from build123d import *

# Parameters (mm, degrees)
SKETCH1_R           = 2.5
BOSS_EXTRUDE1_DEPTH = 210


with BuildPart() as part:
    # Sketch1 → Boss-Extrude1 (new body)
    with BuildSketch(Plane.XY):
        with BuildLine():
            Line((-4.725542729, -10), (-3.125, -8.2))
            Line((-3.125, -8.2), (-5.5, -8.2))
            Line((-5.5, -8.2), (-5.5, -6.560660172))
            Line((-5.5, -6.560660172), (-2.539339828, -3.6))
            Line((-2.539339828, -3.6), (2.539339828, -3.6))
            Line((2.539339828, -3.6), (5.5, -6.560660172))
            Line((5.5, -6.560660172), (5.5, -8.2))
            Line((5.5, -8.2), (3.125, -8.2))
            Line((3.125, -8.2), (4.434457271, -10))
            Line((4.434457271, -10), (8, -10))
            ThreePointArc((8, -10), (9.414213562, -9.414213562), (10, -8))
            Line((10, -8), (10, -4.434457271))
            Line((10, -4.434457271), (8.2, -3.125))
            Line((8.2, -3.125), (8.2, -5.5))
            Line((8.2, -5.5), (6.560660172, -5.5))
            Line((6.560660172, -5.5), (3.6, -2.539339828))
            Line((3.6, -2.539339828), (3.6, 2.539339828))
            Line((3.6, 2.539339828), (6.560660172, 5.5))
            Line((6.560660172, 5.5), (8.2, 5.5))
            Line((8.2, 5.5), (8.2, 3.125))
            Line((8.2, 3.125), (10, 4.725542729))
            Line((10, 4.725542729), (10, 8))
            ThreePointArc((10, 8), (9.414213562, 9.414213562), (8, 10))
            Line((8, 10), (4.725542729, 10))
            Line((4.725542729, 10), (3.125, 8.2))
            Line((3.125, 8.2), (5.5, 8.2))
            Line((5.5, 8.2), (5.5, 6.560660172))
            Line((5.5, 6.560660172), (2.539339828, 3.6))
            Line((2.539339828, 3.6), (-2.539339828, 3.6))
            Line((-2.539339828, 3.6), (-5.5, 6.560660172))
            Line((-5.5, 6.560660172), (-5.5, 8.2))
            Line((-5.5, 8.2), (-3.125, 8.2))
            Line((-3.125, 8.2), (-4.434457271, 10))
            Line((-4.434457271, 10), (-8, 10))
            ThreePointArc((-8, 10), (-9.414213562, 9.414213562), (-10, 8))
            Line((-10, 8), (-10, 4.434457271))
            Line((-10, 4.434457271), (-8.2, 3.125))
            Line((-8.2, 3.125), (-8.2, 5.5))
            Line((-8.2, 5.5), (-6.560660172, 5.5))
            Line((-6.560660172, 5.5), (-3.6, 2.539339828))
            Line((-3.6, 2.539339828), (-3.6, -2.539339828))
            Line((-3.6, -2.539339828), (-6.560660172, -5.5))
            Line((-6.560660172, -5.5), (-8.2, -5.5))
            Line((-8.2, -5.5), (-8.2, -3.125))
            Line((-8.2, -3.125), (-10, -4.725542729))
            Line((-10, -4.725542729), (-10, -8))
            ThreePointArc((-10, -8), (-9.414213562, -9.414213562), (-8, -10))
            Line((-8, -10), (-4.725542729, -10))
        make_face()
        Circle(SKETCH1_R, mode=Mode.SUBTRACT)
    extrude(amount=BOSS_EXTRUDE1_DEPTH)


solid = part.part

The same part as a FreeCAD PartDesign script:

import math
import FreeCAD as App
import Part
import Sketcher

V = App.Vector
Q = App.Units.Quantity

doc = App.newDocument("Part")
body = doc.addObject("PartDesign::Body", "Body")

# Sketch on XY plane
sketch1 = doc.addObject("Sketcher::SketchObject", "Sketch")
body.addObject(sketch1)
sketch1.AttachmentSupport = (doc.XY_Plane, [""])
sketch1.MapMode = "FlatFace"
sketch1.addGeometry([
    Part.LineSegment(V(-4.725543, -10, 0), V(-3.125, -8.2, 0)),  # 0
    Part.LineSegment(V(-3.125, -8.2, 0), V(-5.5, -8.2, 0)),  # 1
    Part.LineSegment(V(-5.5, -8.2, 0), V(-5.5, -6.56066, 0)),  # 2
    Part.LineSegment(V(-5.5, -6.56066, 0), V(-2.53934, -3.6, 0)),  # 3
    Part.LineSegment(V(-2.53934, -3.6, 0), V(2.53934, -3.6, 0)),  # 4
    Part.LineSegment(V(2.53934, -3.6, 0), V(5.5, -6.56066, 0)),  # 5
    Part.LineSegment(V(5.5, -6.56066, 0), V(5.5, -8.2, 0)),  # 6
    Part.LineSegment(V(5.5, -8.2, 0), V(3.125, -8.2, 0)),  # 7
    Part.LineSegment(V(3.125, -8.2, 0), V(4.434457, -10, 0)),  # 8
    Part.LineSegment(V(4.434457, -10, 0), V(8, -10, 0)),  # 9
    Part.ArcOfCircle(Part.Circle(V(8, -8, 0), V(0, 0, 1), 2), math.radians(-90), math.radians(0)),  # 10
    Part.LineSegment(V(10, -8, 0), V(10, -4.434457, 0)),  # 11
    Part.LineSegment(V(10, -4.434457, 0), V(8.2, -3.125, 0)),  # 12
    Part.LineSegment(V(8.2, -3.125, 0), V(8.2, -5.5, 0)),  # 13
    Part.LineSegment(V(8.2, -5.5, 0), V(6.56066, -5.5, 0)),  # 14
    Part.LineSegment(V(6.56066, -5.5, 0), V(3.6, -2.53934, 0)),  # 15
    Part.LineSegment(V(3.6, -2.53934, 0), V(3.6, 2.53934, 0)),  # 16
    Part.LineSegment(V(3.6, 2.53934, 0), V(6.56066, 5.5, 0)),  # 17
    Part.LineSegment(V(6.56066, 5.5, 0), V(8.2, 5.5, 0)),  # 18
    Part.LineSegment(V(8.2, 5.5, 0), V(8.2, 3.125, 0)),  # 19
    Part.LineSegment(V(8.2, 3.125, 0), V(10, 4.725543, 0)),  # 20
    Part.LineSegment(V(10, 4.725543, 0), V(10, 8, 0)),  # 21
    Part.ArcOfCircle(Part.Circle(V(8, 8, 0), V(0, 0, 1), 2), math.radians(0), math.radians(90)),  # 22
    Part.LineSegment(V(8, 10, 0), V(4.725543, 10, 0)),  # 23
    Part.LineSegment(V(4.725543, 10, 0), V(3.125, 8.2, 0)),  # 24
    Part.LineSegment(V(3.125, 8.2, 0), V(5.5, 8.2, 0)),  # 25
    Part.LineSegment(V(5.5, 8.2, 0), V(5.5, 6.56066, 0)),  # 26
    Part.LineSegment(V(5.5, 6.56066, 0), V(2.53934, 3.6, 0)),  # 27
    Part.LineSegment(V(2.53934, 3.6, 0), V(-2.53934, 3.6, 0)),  # 28
    Part.LineSegment(V(-2.53934, 3.6, 0), V(-5.5, 6.56066, 0)),  # 29
    Part.LineSegment(V(-5.5, 6.56066, 0), V(-5.5, 8.2, 0)),  # 30
    Part.LineSegment(V(-5.5, 8.2, 0), V(-3.125, 8.2, 0)),  # 31
    Part.LineSegment(V(-3.125, 8.2, 0), V(-4.434457, 10, 0)),  # 32
    Part.LineSegment(V(-4.434457, 10, 0), V(-8, 10, 0)),  # 33
    Part.ArcOfCircle(Part.Circle(V(-8, 8, 0), V(0, 0, 1), 2), math.radians(90), math.radians(180)),  # 34
    Part.LineSegment(V(-10, 8, 0), V(-10, 4.434457, 0)),  # 35
    Part.LineSegment(V(-10, 4.434457, 0), V(-8.2, 3.125, 0)),  # 36
    Part.LineSegment(V(-8.2, 3.125, 0), V(-8.2, 5.5, 0)),  # 37
    Part.LineSegment(V(-8.2, 5.5, 0), V(-6.56066, 5.5, 0)),  # 38
    Part.LineSegment(V(-6.56066, 5.5, 0), V(-3.6, 2.53934, 0)),  # 39
    Part.LineSegment(V(-3.6, 2.53934, 0), V(-3.6, -2.53934, 0)),  # 40
    Part.LineSegment(V(-3.6, -2.53934, 0), V(-6.56066, -5.5, 0)),  # 41
    Part.LineSegment(V(-6.56066, -5.5, 0), V(-8.2, -5.5, 0)),  # 42
    Part.LineSegment(V(-8.2, -5.5, 0), V(-8.2, -3.125, 0)),  # 43
    Part.LineSegment(V(-8.2, -3.125, 0), V(-10, -4.725543, 0)),  # 44
    Part.LineSegment(V(-10, -4.725543, 0), V(-10, -8, 0)),  # 45
    Part.ArcOfCircle(Part.Circle(V(-8, -8, 0), V(0, 0, 1), 2), math.radians(-180), math.radians(-90)),  # 46
    Part.LineSegment(V(-8, -10, 0), V(-4.725543, -10, 0)),  # 47
    Part.Circle(V(0, 0, 0), V(0, 0, 1), 2.5),  # 48
], False)
sketch1.addConstraint([
    Sketcher.Constraint("Coincident", 0, 2, 1, 1),
    Sketcher.Constraint("Coincident", 1, 2, 2, 1),
    Sketcher.Constraint("Coincident", 2, 2, 3, 1),
    Sketcher.Constraint("Coincident", 3, 2, 4, 1),
    Sketcher.Constraint("Coincident", 4, 2, 5, 1),
    Sketcher.Constraint("Coincident", 5, 2, 6, 1),
    Sketcher.Constraint("Coincident", 6, 2, 7, 1),
    Sketcher.Constraint("Coincident", 7, 2, 8, 1),
    Sketcher.Constraint("Coincident", 8, 2, 9, 1),
    Sketcher.Constraint("Tangent", 9, 2, 10, 1),
    Sketcher.Constraint("Tangent", 10, 2, 11, 1),
    Sketcher.Constraint("Coincident", 11, 2, 12, 1),
    Sketcher.Constraint("Coincident", 12, 2, 13, 1),
    Sketcher.Constraint("Coincident", 13, 2, 14, 1),
    Sketcher.Constraint("Coincident", 14, 2, 15, 1),
    Sketcher.Constraint("Coincident", 15, 2, 16, 1),
    Sketcher.Constraint("Coincident", 16, 2, 17, 1),
    Sketcher.Constraint("Coincident", 17, 2, 18, 1),
    Sketcher.Constraint("Coincident", 18, 2, 19, 1),
    Sketcher.Constraint("Coincident", 19, 2, 20, 1),
    Sketcher.Constraint("Coincident", 20, 2, 21, 1),
    Sketcher.Constraint("Tangent", 21, 2, 22, 1),
    Sketcher.Constraint("Tangent", 22, 2, 23, 1),
    Sketcher.Constraint("Coincident", 23, 2, 24, 1),
    Sketcher.Constraint("Coincident", 24, 2, 25, 1),
    Sketcher.Constraint("Coincident", 25, 2, 26, 1),
    Sketcher.Constraint("Coincident", 26, 2, 27, 1),
    Sketcher.Constraint("Coincident", 27, 2, 28, 1),
    Sketcher.Constraint("Coincident", 28, 2, 29, 1),
    Sketcher.Constraint("Coincident", 29, 2, 30, 1),
    Sketcher.Constraint("Coincident", 30, 2, 31, 1),
    Sketcher.Constraint("Coincident", 31, 2, 32, 1),
    Sketcher.Constraint("Coincident", 32, 2, 33, 1),
    Sketcher.Constraint("Tangent", 33, 2, 34, 1),
    Sketcher.Constraint("Tangent", 34, 2, 35, 1),
    Sketcher.Constraint("Coincident", 35, 2, 36, 1),
    Sketcher.Constraint("Coincident", 36, 2, 37, 1),
    Sketcher.Constraint("Coincident", 37, 2, 38, 1),
    Sketcher.Constraint("Coincident", 38, 2, 39, 1),
    Sketcher.Constraint("Coincident", 39, 2, 40, 1),
    Sketcher.Constraint("Coincident", 40, 2, 41, 1),
    Sketcher.Constraint("Coincident", 41, 2, 42, 1),
    Sketcher.Constraint("Coincident", 42, 2, 43, 1),
    Sketcher.Constraint("Coincident", 43, 2, 44, 1),
    Sketcher.Constraint("Coincident", 44, 2, 45, 1),
    Sketcher.Constraint("Tangent", 45, 2, 46, 1),
    Sketcher.Constraint("Tangent", 46, 2, 47, 1),
    Sketcher.Constraint("Coincident", 47, 2, 0, 1),
    Sketcher.Constraint("Horizontal", 1),
    Sketcher.Constraint("Vertical", 2),
    Sketcher.Constraint("Horizontal", 4),
    Sketcher.Constraint("Vertical", 6),
    Sketcher.Constraint("Horizontal", 7),
    Sketcher.Constraint("Horizontal", 9),
    Sketcher.Constraint("Vertical", 11),
    Sketcher.Constraint("Vertical", 13),
    Sketcher.Constraint("Horizontal", 14),
    Sketcher.Constraint("Vertical", 16),
    Sketcher.Constraint("Horizontal", 18),
    Sketcher.Constraint("Vertical", 19),
    Sketcher.Constraint("Vertical", 21),
    Sketcher.Constraint("Horizontal", 23),
    Sketcher.Constraint("Horizontal", 25),
    Sketcher.Constraint("Vertical", 26),
    Sketcher.Constraint("Horizontal", 28),
    Sketcher.Constraint("Vertical", 30),
    Sketcher.Constraint("Horizontal", 31),
    Sketcher.Constraint("Horizontal", 33),
    Sketcher.Constraint("Vertical", 35),
    Sketcher.Constraint("Vertical", 37),
    Sketcher.Constraint("Horizontal", 38),
    Sketcher.Constraint("Vertical", 40),
    Sketcher.Constraint("Horizontal", 42),
    Sketcher.Constraint("Vertical", 43),
    Sketcher.Constraint("Vertical", 45),
    Sketcher.Constraint("Horizontal", 47),
    Sketcher.Constraint("Coincident", 48, 3, -1, 1),
    Sketcher.Constraint("Equal", 10, 22),
    Sketcher.Constraint("Equal", 22, 34),
    Sketcher.Constraint("Equal", 34, 46),
    Sketcher.Constraint("Symmetric", 10, 3, 34, 3, -1, 1),
    Sketcher.Constraint("Symmetric", 22, 3, 46, 3, -1, 1),
    Sketcher.Constraint("Symmetric", 0, 2, 24, 2, -1, 1),
    Sketcher.Constraint("Symmetric", 2, 2, 26, 2, -1, 1),
    Sketcher.Constraint("Symmetric", 3, 2, 27, 2, -1, 1),
    Sketcher.Constraint("Symmetric", 5, 2, 29, 2, -1, 1),
    Sketcher.Constraint("Symmetric", 7, 2, 31, 2, -1, 1),
    Sketcher.Constraint("Symmetric", 12, 2, 36, 2, -1, 1),
    Sketcher.Constraint("Symmetric", 14, 2, 38, 2, -1, 1),
    Sketcher.Constraint("Symmetric", 15, 2, 39, 2, -1, 1),
    Sketcher.Constraint("Symmetric", 17, 2, 41, 2, -1, 1),
    Sketcher.Constraint("Symmetric", 19, 2, 43, 2, -1, 1),
    Sketcher.Constraint("Symmetric", 22, 3, 34, 3, -2),
    Sketcher.Constraint("Symmetric", 2, 2, 5, 2, -2),
    Sketcher.Constraint("Symmetric", 0, 2, 7, 2, -2),
    Sketcher.Constraint("Symmetric", 19, 2, 36, 2, -2),
    Sketcher.Constraint("Symmetric", 17, 2, 38, 2, -2),
    Sketcher.Constraint("Perpendicular", 3, 5),
    Sketcher.Constraint("Parallel", 5, 15),
    Sketcher.Constraint("Perpendicular", 15, 17),
    Sketcher.Constraint("Parallel", 0, 24),
    Sketcher.Constraint("Perpendicular", 27, 29),
    Sketcher.Constraint("Parallel", 8, 32),
    Sketcher.Constraint("Parallel", 12, 36),
    Sketcher.Constraint("Perpendicular", 39, 41),
    Sketcher.Constraint("Parallel", 20, 44),
    Sketcher.Constraint("Horizontal", 16, 2, 39, 2),
    Sketcher.Constraint("Equal", 42, 2),
    Sketcher.Constraint("Equal", 33, 11),
    Sketcher.Constraint("Equal", 31, 13),
    Sketcher.Constraint("Equal", 28, 16),
    Sketcher.Constraint("Equal", 47, 21),
    Sketcher.Constraint("Equal", 8, 12),
    Sketcher.Constraint("Equal", 5, 15),
    Sketcher.Constraint("Equal", 0, 20),
    Sketcher.Constraint("Diameter", 48, Q("5 mm")),
    Sketcher.Constraint("Radius", 10, Q("2 mm")),
    Sketcher.Constraint("DistanceX", -1, 1, 10, 3, Q("8 mm")),
    Sketcher.Constraint("DistanceY", 0, 2, -1, 1, Q("8.2 mm")),
    Sketcher.Constraint("DistanceX", 1, 2, -1, 1, Q("5.5 mm")),
    Sketcher.Constraint("DistanceY", 3, 2, -1, 1, Q("3.6 mm")),
    Sketcher.Constraint("DistanceX", 1, 2, 1, 1, Q("2.375 mm")),
    Sketcher.Constraint("DistanceX", 4, 1, 4, 2, Q("5.07868 mm")),
    Sketcher.Constraint("Distance", 0, Q("2.40868 mm")),
    Sketcher.Constraint("Distance", 8, Q("2.225911 mm")),
])
pad1 = doc.addObject("PartDesign::Pad", "Pad")
body.addObject(pad1)
pad1.Profile = sketch1
pad1.Length = 210

doc.recompute()
